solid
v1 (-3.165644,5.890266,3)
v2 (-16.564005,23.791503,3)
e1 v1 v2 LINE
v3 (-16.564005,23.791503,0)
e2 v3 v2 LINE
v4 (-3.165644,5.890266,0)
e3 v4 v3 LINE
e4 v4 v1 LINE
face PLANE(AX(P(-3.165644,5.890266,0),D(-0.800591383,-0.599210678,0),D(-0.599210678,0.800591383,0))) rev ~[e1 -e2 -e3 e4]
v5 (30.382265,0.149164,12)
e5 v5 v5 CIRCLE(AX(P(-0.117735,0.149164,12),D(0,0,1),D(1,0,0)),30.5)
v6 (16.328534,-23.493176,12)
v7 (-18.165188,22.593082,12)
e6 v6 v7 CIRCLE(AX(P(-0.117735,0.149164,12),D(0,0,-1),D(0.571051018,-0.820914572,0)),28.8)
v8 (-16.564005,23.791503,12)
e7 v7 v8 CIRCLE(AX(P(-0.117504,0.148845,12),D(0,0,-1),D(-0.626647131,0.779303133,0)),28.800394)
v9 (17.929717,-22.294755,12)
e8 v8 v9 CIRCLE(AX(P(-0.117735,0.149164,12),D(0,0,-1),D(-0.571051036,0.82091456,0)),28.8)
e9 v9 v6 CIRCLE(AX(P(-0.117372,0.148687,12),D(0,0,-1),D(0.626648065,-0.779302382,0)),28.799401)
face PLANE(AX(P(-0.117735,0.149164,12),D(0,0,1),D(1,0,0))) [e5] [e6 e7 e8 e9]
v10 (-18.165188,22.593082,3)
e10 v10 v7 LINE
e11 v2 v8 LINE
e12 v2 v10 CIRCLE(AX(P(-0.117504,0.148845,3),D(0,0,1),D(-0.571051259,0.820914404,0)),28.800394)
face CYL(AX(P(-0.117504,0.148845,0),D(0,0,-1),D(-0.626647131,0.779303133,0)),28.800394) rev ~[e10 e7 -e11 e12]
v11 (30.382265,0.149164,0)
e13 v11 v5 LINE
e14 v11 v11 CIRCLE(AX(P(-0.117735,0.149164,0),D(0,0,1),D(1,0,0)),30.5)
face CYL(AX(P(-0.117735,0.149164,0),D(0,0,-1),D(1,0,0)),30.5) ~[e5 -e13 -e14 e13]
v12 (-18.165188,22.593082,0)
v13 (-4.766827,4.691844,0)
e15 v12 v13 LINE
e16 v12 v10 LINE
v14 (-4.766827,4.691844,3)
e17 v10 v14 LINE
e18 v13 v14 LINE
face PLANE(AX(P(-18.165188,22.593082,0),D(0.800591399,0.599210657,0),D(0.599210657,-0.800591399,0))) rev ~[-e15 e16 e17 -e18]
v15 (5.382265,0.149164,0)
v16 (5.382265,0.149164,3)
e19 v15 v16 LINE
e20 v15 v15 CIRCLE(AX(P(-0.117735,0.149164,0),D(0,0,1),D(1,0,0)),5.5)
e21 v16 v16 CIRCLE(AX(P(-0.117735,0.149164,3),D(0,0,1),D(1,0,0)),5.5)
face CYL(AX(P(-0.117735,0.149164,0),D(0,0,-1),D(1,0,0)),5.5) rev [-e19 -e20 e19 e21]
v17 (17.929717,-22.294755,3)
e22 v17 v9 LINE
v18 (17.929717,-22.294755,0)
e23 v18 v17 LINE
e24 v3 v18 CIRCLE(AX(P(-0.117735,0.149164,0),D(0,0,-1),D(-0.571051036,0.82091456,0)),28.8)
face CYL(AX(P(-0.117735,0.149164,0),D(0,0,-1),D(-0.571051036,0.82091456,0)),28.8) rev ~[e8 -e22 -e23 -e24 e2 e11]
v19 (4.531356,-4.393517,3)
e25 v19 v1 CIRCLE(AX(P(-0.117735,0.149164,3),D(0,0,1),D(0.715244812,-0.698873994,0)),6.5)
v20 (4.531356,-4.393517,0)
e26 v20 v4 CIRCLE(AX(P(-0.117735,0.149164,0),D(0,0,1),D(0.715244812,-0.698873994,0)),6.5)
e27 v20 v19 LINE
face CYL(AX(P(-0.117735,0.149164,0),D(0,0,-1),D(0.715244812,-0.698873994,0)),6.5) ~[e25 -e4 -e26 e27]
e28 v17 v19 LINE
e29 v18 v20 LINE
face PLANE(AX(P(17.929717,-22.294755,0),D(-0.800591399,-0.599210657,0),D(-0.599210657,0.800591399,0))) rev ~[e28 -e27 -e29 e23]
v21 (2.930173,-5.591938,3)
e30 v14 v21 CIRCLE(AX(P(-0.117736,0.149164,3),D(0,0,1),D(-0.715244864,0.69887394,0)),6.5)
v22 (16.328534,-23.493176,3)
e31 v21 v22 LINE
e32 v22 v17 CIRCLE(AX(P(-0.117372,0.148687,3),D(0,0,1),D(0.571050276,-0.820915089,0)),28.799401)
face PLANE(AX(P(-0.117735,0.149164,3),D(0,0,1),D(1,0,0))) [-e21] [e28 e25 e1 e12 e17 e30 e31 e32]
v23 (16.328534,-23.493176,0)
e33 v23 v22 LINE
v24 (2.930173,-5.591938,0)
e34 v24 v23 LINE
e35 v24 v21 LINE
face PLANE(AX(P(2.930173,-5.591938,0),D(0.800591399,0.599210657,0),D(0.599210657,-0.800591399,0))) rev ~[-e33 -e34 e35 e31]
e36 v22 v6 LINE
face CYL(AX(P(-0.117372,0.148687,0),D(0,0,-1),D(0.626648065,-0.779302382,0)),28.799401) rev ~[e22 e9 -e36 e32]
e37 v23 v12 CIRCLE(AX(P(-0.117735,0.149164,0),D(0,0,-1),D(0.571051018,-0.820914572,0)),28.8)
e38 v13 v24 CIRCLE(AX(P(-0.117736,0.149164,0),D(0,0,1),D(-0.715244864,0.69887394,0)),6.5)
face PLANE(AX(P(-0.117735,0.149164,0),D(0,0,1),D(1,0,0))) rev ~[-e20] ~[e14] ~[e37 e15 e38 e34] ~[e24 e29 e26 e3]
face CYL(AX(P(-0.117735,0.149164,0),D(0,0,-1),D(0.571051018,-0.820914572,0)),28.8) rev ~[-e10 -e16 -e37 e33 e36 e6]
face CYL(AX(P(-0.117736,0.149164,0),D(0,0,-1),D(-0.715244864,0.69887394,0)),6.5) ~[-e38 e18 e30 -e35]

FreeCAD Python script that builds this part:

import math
import FreeCAD as App
import Part
import Sketcher
from FreeCAD import Vector

doc = App.newDocument("Part")
body = doc.addObject("PartDesign::Body", "Body")

# Sketch on XY plane
sketch1 = body.newObject("Sketcher::SketchObject", "Sketch")
sketch1.AttachmentSupport = (doc.getObject("XY_Plane"), [""])
sketch1.MapMode = "FlatFace"
sketch1.addGeometry(Part.Circle(Vector(-0.117735, 0.149164, 0), Vector(0, 0, 1), 30.5), False)
sketch1.addGeometry(Part.ArcOfCircle(Part.Circle(Vector(-0.117735, 0.149164, 0), Vector(0, 0, 1), 28.8), math.radians(128.803223), math.radians(304.823549)), False)
sketch1.addGeometry(Part.ArcOfCircle(Part.Circle(Vector(-0.117504, 0.148845, 0), Vector(0, 0, 1), 28.800394), math.radians(124.823566), math.radians(128.803185)), False)
sketch1.addGeometry(Part.ArcOfCircle(Part.Circle(Vector(-0.117735, 0.149164, 0), Vector(0, 0, 1), 28.8), math.radians(-51.196778), math.radians(124.82355)), False)
sketch1.addGeometry(Part.ArcOfCircle(Part.Circle(Vector(-0.117372, 0.148687, 0), Vector(0, 0, 1), 28.799401), math.radians(-55.176503), math.radians(-51.196746)), False)
sketch1.addConstraint(Sketcher.Constraint("Coincident", 1, 1, 2, 2))
sketch1.addConstraint(Sketcher.Constraint("Coincident", 2, 1, 3, 2))
sketch1.addConstraint(Sketcher.Constraint("Coincident", 3, 1, 4, 2))
sketch1.addConstraint(Sketcher.Constraint("Coincident", 4, 1, 1, 2))
sketch1.addConstraint(Sketcher.Constraint("Coincident", 1, 3, 0, 3))
sketch1.addConstraint(Sketcher.Constraint("Coincident", 3, 3, 0, 3))
sketch1.addConstraint(Sketcher.Constraint("Diameter", 0, 61.0))
sketch1.addConstraint(Sketcher.Constraint("Radius", 1, 28.8))
sketch1.addConstraint(Sketcher.Constraint("Radius", 3, 28.8))
sketch1.addConstraint(Sketcher.Constraint("Radius", 4, 28.799401))
sketch1.addConstraint(Sketcher.Constraint("Radius", 2, 28.800394))
sketch1.addConstraint(Sketcher.Constraint("DistanceX", 2, 1, 2, 3, 16.446501))
sketch1.addConstraint(Sketcher.Constraint("DistanceY", 3, 1, 2, 3, 22.4436))
sketch1.addConstraint(Sketcher.Constraint("DistanceX", 4, 3, -1, 1, 0.117372))
sketch1.addConstraint(Sketcher.Constraint("DistanceX", 1, 1, -1, 1, 18.165188))
sketch1.addConstraint(Sketcher.Constraint("DistanceY", 4, 1, 3, 1, 1.198421))
sketch1.addConstraint(Sketcher.Constraint("DistanceY", -1, 1, 0, 3, 0.149164))
pad1 = body.newObject("PartDesign::Pad", "Pad")
pad1.Profile = sketch1
pad1.Length = 12

# Sketch on XY plane
sketch2 = body.newObject("Sketcher::SketchObject", "Sketch001")
sketch2.AttachmentSupport = (doc.getObject("XY_Plane"), [""])
sketch2.MapMode = "FlatFace"
sketch2.addGeometry(Part.LineSegment(Vector(-3.165644, 5.890266, 0), Vector(-16.564005, 23.791503, 0)), False)
sketch2.addGeometry(Part.ArcOfCircle(Part.Circle(Vector(-0.117504, 0.148845, 0), Vector(0, 0, 1), 28.800394), math.radians(124.823566), math.radians(128.803185)), False)
sketch2.addGeometry(Part.LineSegment(Vector(-18.165188, 22.593082, 0), Vector(-4.766827, 4.691844, 0)), False)
sketch2.addGeometry(Part.ArcOfCircle(Part.Circle(Vector(-0.117736, 0.149164, 0), Vector(0, 0, 1), 6.5), math.radians(135.66327), math.radians(297.963504)), False)
sketch2.addGeometry(Part.LineSegment(Vector(2.930173, -5.591938, 0), Vector(16.328534, -23.493176, 0)), False)
sketch2.addGeometry(Part.ArcOfCircle(Part.Circle(Vector(-0.117372, 0.148687, 0), Vector(0, 0, 1), 28.799401), math.radians(-55.176503), math.radians(-51.196746)), False)
sketch2.addGeometry(Part.LineSegment(Vector(17.929717, -22.294755, 0), Vector(4.531356, -4.393517, 0)), False)
sketch2.addGeometry(Part.ArcOfCircle(Part.Circle(Vector(-0.117735, 0.149164, 0), Vector(0, 0, 1), 6.5), math.radians(-44.336734), math.radians(117.963503)), False)
sketch2.addGeometry(Part.Circle(Vector(-0.117735, 0.149164, 0), Vector(0, 0, 1), 5.5), False)
sketch2.addConstraint(Sketcher.Constraint("Coincident", 0, 2, 1, 1))
sketch2.addConstraint(Sketcher.Constraint("Coincident", 1, 2, 2, 1))
sketch2.addConstraint(Sketcher.Constraint("Coincident", 2, 2, 3, 1))
sketch2.addConstraint(Sketcher.Constraint("Coincident", 3, 2, 4, 1))
sketch2.addConstraint(Sketcher.Constraint("Coincident", 4, 2, 5, 1))
sketch2.addConstraint(Sketcher.Constraint("Coincident", 5, 2, 6, 1))
sketch2.addConstraint(Sketcher.Constraint("Coincident", 6, 2, 7, 1))
sketch2.addConstraint(Sketcher.Constraint("Coincident", 7, 2, 0, 1))
sketch2.addConstraint(Sketcher.Constraint("Coincident", 7, 3, 3, 3))
sketch2.addConstraint(Sketcher.Constraint("Coincident", 8, 3, 3, 3))
sketch2.addConstraint(Sketcher.Constraint("Equal", 3, 7))
sketch2.addConstraint(Sketcher.Constraint("Parallel", 0, 2))
sketch2.addConstraint(Sketcher.Constraint("Parallel", 2, 4))
sketch2.addConstraint(Sketcher.Constraint("Parallel", 4, 6))
sketch2.addConstraint(Sketcher.Constraint("Equal", 0, 2))
sketch2.addConstraint(Sketcher.Constraint("Equal", 2, 4))
sketch2.addConstraint(Sketcher.Constraint("Equal", 4, 6))
sketch2.addConstraint(Sketcher.Constraint("Diameter", 8, 11.0))
sketch2.addConstraint(Sketcher.Constraint("Radius", 3, 6.5))
sketch2.addConstraint(Sketcher.Constraint("Radius", 5, 28.799401))
sketch2.addConstraint(Sketcher.Constraint("Radius", 1, 28.800394))
sketch2.addConstraint(Sketcher.Constraint("DistanceY", 1, 3, 2, 2, 4.542999))
sketch2.addConstraint(Sketcher.Constraint("DistanceX", 0, 2, 1, 3, 16.446501))
sketch2.addConstraint(Sketcher.Constraint("DistanceY", 3, 2, 3, 3, 5.741102))
sketch2.addConstraint(Sketcher.Constraint("DistanceY", 5, 2, 1, 3, 22.4436))
sketch2.addConstraint(Sketcher.Constraint("DistanceX", 5, 3, -1, 1, 0.117372))
sketch2.addConstraint(Sketcher.Constraint("DistanceX", 1, 2, -1, 1, 18.165188))
sketch2.addConstraint(Sketcher.Constraint("DistanceX", 3, 3, 1, 3, 0.000232))
sketch2.addConstraint(Sketcher.Constraint("DistanceY", -1, 1, 1, 3, 0.148845))
pad2 = body.newObject("PartDesign::Pad", "Pad001")
pad2.Profile = sketch2
pad2.Length = 3

doc.recompute()
